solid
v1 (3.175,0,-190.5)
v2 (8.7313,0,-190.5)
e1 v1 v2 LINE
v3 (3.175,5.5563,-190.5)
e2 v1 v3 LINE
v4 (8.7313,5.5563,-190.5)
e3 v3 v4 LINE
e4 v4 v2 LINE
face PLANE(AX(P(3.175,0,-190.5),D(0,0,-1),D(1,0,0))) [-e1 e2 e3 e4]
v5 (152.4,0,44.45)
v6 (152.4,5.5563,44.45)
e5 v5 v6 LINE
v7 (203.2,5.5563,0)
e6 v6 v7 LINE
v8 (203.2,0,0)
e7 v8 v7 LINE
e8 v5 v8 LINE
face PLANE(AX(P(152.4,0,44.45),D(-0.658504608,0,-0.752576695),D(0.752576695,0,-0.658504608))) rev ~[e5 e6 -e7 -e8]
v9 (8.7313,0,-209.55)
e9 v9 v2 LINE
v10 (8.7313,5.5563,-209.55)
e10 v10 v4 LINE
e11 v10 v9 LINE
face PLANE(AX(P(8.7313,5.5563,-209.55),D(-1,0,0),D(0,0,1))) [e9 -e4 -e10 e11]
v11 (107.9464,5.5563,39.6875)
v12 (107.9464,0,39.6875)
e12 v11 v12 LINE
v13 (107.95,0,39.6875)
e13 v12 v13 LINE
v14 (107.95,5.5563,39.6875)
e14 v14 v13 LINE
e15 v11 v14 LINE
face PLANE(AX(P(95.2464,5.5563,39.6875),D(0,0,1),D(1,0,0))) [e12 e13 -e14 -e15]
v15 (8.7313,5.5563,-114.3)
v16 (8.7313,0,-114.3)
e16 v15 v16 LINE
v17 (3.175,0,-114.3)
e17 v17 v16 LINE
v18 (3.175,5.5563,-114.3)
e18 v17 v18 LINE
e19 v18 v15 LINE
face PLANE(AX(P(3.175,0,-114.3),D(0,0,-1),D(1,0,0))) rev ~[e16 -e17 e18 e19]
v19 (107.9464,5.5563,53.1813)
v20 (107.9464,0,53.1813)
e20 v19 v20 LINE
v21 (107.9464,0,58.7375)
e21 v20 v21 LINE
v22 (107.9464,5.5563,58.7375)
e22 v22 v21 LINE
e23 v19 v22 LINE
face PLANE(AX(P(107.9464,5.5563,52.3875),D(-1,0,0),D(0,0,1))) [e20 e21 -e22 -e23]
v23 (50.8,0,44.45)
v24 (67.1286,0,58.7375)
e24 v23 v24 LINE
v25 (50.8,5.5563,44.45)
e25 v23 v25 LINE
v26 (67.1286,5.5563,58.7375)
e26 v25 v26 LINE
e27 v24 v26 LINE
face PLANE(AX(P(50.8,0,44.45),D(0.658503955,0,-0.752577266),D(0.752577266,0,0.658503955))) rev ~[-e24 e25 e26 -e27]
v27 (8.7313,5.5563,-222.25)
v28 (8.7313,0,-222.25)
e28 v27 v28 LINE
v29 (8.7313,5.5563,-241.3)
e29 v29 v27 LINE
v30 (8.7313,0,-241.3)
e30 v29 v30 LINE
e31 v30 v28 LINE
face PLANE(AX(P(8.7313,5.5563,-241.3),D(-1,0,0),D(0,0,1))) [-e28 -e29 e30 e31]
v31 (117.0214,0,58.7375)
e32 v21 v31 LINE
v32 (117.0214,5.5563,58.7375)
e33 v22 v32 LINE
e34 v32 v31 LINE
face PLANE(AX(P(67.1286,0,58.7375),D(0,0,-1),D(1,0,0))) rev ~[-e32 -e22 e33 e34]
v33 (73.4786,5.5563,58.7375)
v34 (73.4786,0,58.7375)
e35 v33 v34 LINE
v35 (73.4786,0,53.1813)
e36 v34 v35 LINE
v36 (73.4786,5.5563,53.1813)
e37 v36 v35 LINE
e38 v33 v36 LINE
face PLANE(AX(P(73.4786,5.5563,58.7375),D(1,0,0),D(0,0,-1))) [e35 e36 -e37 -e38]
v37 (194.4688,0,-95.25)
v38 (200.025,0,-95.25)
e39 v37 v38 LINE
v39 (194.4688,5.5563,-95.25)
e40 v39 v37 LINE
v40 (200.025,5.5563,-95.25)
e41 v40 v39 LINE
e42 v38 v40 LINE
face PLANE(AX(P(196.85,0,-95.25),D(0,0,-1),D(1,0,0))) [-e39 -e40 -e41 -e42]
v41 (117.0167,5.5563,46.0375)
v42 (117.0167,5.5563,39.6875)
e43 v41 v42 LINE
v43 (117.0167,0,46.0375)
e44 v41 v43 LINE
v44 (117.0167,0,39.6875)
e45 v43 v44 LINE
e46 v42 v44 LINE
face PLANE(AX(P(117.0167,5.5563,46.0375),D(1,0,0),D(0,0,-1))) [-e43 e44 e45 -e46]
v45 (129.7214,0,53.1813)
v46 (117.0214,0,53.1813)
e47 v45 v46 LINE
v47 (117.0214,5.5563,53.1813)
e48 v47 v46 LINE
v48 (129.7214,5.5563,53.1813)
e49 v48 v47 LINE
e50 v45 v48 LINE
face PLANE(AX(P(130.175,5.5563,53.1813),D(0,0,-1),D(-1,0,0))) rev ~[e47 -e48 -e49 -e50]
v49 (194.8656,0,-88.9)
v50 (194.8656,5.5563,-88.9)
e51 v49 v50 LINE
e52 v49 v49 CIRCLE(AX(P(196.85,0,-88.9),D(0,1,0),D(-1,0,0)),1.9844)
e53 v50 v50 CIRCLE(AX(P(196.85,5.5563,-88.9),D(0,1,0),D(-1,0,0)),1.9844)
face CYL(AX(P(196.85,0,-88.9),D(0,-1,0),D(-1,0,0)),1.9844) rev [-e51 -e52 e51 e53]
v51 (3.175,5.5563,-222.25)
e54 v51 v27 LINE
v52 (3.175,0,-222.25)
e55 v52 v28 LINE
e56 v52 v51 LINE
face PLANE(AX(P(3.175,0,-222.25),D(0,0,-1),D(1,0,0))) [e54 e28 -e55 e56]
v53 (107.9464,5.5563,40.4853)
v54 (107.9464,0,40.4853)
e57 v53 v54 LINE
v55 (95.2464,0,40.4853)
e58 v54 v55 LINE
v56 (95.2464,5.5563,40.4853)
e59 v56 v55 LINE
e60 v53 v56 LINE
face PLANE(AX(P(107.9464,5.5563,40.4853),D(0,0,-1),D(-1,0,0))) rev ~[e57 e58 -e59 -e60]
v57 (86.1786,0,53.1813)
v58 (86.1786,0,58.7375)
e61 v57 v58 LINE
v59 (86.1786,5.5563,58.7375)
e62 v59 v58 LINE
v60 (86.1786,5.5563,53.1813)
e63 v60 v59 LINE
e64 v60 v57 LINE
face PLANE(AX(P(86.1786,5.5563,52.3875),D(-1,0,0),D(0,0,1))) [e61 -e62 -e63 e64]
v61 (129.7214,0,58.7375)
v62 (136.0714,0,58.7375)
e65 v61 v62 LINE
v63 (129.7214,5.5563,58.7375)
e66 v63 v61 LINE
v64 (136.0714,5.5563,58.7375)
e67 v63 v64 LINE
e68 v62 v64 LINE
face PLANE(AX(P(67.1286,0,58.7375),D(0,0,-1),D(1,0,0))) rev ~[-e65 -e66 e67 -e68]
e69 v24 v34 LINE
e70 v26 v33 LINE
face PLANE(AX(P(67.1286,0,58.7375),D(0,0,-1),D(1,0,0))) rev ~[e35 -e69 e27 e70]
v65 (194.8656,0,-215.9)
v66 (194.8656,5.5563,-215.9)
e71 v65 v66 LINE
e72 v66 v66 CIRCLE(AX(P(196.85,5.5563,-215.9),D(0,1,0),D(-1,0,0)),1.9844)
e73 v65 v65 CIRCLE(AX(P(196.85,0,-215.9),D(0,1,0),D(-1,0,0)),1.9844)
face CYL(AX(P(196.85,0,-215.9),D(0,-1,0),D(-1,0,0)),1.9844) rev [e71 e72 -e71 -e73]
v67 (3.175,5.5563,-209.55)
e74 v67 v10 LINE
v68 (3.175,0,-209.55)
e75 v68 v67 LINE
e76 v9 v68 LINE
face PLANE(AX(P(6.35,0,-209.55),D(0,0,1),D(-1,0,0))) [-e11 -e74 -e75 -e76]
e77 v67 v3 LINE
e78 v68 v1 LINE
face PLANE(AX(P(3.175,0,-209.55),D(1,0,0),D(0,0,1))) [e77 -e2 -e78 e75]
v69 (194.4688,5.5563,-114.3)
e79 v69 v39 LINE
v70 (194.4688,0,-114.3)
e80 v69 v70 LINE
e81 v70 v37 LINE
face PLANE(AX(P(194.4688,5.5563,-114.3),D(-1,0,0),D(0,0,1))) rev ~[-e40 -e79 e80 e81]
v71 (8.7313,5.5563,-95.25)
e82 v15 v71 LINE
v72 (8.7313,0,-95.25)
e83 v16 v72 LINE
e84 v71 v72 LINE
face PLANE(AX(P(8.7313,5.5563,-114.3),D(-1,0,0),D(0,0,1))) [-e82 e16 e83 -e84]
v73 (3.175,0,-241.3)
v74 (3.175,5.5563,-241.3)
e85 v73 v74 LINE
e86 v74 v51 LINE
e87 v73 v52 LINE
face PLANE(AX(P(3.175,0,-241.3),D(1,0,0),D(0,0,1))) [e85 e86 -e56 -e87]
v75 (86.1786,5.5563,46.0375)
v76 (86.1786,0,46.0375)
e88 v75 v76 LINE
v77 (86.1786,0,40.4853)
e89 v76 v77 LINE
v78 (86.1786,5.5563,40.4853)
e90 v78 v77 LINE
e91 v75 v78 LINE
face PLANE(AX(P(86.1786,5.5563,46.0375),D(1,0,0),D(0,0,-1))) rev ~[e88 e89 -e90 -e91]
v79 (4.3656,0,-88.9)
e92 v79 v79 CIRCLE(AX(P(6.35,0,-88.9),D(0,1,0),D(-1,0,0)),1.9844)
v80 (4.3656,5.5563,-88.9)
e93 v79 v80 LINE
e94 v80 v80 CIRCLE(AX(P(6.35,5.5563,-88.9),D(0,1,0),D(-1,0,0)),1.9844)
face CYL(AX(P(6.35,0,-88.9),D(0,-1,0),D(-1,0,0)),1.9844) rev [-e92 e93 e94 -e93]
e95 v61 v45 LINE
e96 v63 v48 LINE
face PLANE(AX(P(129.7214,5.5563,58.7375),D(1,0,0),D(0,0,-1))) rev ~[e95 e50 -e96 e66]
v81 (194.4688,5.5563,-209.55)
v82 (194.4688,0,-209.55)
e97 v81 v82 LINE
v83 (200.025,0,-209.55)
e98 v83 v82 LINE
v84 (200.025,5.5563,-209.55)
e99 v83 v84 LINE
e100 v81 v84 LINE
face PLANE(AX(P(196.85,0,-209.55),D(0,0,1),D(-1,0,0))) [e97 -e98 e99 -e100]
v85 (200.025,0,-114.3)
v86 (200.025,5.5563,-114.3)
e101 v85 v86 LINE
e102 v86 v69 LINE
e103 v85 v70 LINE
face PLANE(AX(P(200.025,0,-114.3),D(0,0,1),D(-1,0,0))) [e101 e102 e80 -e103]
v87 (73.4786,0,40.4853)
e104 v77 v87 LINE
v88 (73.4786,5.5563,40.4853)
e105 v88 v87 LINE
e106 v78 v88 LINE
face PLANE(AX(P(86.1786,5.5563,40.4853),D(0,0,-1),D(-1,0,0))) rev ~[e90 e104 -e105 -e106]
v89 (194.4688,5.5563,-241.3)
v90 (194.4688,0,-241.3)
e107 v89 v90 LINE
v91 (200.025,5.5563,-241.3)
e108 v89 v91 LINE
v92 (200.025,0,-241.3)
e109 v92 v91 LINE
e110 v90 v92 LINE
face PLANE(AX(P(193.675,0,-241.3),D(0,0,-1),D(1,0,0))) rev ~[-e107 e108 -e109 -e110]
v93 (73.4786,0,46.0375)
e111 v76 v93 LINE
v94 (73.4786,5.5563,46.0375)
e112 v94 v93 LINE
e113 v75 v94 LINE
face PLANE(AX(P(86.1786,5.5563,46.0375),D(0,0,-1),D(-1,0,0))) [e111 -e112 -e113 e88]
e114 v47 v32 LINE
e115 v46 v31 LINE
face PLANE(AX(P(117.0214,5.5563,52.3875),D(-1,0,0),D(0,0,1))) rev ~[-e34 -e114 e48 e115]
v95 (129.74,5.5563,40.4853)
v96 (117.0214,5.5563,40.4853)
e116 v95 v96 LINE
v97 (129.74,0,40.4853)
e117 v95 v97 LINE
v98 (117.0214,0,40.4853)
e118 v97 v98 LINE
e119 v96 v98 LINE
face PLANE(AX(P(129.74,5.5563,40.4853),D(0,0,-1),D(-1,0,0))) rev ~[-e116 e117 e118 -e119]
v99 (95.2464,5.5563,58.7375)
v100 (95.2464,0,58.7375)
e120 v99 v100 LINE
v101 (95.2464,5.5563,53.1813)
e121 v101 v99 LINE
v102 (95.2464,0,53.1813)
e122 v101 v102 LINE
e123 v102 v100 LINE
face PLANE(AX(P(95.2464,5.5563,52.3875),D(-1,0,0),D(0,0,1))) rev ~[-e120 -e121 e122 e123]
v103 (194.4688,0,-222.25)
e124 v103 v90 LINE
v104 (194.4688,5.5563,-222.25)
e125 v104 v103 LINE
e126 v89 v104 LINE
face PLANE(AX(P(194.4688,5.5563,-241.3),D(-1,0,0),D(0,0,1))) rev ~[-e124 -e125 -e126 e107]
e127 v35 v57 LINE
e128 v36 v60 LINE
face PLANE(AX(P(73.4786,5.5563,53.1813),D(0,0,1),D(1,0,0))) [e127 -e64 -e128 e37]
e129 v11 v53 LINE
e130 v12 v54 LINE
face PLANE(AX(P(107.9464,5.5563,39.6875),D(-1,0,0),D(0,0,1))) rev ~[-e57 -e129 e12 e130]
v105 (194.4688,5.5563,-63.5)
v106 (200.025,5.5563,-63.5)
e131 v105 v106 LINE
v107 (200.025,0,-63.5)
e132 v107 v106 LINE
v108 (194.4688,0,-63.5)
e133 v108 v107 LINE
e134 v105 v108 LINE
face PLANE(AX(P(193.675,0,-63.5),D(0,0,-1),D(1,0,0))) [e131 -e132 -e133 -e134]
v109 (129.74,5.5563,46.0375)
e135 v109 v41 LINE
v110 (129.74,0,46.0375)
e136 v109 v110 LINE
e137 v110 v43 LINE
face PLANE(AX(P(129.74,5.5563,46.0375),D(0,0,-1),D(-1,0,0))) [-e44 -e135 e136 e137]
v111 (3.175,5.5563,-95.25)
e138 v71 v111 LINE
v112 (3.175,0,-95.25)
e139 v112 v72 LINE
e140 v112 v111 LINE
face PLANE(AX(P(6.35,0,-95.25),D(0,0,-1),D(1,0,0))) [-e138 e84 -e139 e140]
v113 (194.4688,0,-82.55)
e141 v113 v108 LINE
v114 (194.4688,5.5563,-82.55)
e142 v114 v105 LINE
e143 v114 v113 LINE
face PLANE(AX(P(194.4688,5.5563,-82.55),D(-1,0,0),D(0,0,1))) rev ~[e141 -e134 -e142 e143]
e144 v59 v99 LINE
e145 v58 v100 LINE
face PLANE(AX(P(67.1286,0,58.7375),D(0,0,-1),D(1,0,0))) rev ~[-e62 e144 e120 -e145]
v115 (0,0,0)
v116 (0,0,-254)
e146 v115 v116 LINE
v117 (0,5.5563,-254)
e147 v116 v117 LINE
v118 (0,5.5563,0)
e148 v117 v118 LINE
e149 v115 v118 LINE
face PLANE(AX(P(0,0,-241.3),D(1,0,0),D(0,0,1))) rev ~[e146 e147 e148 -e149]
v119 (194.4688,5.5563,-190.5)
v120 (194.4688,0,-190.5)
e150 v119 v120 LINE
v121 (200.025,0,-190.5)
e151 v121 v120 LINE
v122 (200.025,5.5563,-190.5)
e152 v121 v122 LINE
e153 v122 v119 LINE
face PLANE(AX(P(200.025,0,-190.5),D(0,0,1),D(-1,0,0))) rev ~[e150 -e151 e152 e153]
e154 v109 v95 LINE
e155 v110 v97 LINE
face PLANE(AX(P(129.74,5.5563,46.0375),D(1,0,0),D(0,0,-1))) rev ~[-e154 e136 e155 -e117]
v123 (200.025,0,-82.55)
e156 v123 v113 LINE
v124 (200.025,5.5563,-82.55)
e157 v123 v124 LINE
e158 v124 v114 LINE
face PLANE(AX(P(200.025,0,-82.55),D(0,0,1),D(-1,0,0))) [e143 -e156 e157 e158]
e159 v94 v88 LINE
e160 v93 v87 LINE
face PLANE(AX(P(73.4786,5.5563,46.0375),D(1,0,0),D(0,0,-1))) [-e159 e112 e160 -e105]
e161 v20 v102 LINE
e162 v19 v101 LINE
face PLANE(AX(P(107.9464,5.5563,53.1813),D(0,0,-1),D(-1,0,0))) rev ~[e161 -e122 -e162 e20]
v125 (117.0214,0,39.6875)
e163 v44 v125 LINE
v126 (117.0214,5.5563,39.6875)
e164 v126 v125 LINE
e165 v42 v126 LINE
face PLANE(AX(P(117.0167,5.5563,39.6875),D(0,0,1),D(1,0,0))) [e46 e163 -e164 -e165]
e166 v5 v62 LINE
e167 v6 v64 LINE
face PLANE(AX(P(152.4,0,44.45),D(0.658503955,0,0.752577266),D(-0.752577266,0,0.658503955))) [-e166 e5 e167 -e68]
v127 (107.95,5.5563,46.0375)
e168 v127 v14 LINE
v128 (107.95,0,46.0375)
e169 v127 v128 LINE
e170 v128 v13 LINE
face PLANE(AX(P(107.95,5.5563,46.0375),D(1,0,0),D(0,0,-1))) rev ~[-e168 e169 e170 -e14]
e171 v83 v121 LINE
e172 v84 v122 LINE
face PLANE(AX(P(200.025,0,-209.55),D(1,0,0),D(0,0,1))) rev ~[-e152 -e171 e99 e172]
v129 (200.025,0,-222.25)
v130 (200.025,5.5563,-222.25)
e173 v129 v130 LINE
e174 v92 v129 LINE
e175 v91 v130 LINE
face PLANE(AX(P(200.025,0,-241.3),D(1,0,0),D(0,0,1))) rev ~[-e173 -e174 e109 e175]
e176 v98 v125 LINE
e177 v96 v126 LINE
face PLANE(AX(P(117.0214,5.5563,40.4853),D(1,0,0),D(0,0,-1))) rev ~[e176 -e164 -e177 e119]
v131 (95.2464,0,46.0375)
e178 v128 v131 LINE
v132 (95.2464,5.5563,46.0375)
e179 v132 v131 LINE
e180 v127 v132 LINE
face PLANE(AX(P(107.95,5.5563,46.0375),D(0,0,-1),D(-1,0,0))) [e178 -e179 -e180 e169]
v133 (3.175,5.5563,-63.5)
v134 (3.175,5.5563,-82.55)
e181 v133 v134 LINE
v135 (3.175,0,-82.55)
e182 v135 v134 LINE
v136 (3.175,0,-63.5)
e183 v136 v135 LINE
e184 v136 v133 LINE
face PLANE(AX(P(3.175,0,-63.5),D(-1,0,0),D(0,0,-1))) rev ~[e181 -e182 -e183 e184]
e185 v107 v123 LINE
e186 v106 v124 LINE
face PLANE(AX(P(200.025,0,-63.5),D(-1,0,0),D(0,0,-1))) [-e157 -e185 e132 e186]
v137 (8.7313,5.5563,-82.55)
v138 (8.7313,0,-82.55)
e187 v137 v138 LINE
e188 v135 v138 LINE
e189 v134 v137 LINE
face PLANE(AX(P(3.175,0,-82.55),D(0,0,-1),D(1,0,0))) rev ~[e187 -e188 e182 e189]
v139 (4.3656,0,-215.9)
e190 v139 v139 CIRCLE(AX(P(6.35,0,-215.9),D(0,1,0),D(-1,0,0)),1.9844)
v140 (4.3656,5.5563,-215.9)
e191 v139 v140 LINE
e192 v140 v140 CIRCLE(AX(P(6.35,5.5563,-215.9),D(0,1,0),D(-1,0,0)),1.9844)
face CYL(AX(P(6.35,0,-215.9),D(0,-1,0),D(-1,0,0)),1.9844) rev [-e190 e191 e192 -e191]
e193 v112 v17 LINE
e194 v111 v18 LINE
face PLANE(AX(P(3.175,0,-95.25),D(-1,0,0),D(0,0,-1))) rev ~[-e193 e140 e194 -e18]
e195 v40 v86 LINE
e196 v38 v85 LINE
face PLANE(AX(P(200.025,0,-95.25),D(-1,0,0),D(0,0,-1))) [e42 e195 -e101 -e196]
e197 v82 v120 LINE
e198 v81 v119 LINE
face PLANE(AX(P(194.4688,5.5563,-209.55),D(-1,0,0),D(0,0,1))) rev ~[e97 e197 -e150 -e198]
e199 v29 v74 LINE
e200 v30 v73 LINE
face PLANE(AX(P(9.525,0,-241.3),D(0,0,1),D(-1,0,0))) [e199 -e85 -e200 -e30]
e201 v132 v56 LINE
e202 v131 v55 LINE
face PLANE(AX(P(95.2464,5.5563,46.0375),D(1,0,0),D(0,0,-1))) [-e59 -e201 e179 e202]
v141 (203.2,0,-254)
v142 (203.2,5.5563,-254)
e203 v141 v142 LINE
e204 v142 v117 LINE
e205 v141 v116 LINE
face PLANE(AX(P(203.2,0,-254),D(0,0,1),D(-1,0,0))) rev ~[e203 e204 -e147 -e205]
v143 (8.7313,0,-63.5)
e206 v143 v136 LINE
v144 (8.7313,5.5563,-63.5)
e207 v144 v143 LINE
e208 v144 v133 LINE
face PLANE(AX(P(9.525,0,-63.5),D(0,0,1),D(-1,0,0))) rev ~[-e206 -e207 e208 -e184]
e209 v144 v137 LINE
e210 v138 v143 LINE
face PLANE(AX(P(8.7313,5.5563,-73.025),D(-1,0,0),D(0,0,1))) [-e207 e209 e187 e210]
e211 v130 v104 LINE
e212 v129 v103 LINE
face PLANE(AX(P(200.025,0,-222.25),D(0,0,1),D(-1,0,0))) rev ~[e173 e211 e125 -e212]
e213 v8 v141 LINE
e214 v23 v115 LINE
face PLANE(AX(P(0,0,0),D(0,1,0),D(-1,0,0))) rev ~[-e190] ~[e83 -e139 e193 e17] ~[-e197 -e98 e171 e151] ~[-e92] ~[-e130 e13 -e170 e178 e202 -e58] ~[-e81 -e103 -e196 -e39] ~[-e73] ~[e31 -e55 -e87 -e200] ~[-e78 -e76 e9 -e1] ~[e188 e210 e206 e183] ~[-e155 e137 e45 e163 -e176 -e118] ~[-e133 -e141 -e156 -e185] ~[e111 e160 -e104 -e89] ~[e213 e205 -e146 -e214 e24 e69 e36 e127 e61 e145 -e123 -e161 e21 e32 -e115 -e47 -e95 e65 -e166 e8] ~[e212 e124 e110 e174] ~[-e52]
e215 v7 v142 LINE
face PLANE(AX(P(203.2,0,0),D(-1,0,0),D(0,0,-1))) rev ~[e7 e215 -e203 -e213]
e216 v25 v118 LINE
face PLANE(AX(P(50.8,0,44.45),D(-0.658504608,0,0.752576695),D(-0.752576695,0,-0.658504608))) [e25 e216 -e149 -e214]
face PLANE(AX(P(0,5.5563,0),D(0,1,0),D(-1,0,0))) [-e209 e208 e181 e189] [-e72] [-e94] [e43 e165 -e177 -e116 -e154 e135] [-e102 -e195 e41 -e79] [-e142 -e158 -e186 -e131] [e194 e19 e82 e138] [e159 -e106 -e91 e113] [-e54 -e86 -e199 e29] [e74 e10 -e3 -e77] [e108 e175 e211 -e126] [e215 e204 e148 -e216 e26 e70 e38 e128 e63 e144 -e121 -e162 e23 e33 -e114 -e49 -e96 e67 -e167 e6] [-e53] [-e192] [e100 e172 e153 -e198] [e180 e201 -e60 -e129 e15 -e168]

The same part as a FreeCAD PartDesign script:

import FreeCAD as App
import Part
import Sketcher
from FreeCAD import Vector
Q = App.Units.Quantity


def add_polygon(sketch, points):
    """Adds a closed chain of lines whose ends are joined by coincident constraints."""
    first, n = sketch.GeometryCount, len(points)
    for a, b in zip(points, points[1:] + points[:1]):
        sketch.addGeometry(Part.LineSegment(App.Vector(*a, 0), App.Vector(*b, 0)), False)
    for i in range(n):
        sketch.addConstraint(Sketcher.Constraint("Coincident", first + i, 2, first + (i + 1) % n, 1))

doc = App.newDocument("Part")
body = doc.addObject("PartDesign::Body", "Body")

# Sketch on XZ plane
sketch1 = body.newObject("Sketcher::SketchObject", "Sketch")
sketch1.AttachmentSupport = (doc.getObject("XZ_Plane"), [""])
sketch1.MapMode = "FlatFace"
add_polygon(sketch1, [(152.4, 44.45), (203.2, 0), (203.2, -254), (0, -254), (0, 0), (50.8, 44.45), (67.1286, 58.7375), (136.0714, 58.7375)])  # lines 0-7
add_polygon(sketch1, [(193.675, -241.3), (200.025, -241.3), (200.025, -222.25), (193.675, -222.25)])  # lines 8-11
add_polygon(sketch1, [(193.675, -209.55), (200.025, -209.55), (200.025, -190.5), (193.675, -190.5)])  # lines 12-15
add_polygon(sketch1, [(200.025, -95.25), (193.675, -95.25), (193.675, -114.3), (200.025, -114.3)])  # lines 16-19
add_polygon(sketch1, [(3.175, -222.25), (3.175, -241.3), (9.525, -241.3), (9.525, -222.25)])  # lines 20-23
add_polygon(sketch1, [(3.175, -209.55), (9.525, -209.55), (9.525, -190.5), (3.175, -190.5)])  # lines 24-27
add_polygon(sketch1, [(9.525, -95.25), (3.175, -95.25), (3.175, -114.3), (9.525, -114.3)])  # lines 28-31
add_polygon(sketch1, [(200.025, -63.5), (193.675, -63.5), (193.675, -82.55), (200.025, -82.55)])  # lines 32-35
add_polygon(sketch1, [(9.525, -63.5), (3.175, -63.5), (3.175, -82.55), (9.525, -82.55)])  # lines 36-39
sketch1.addGeometry(Part.Circle(Vector(196.85, -215.9, 0), Vector(0, 0, 1), 1.9844), False)  # 40
sketch1.addGeometry(Part.Circle(Vector(6.35, -215.9, 0), Vector(0, 0, 1), 1.9844), False)  # 41
sketch1.addGeometry(Part.Circle(Vector(196.85, -88.9, 0), Vector(0, 0, 1), 1.9844), False)  # 42
sketch1.addGeometry(Part.Circle(Vector(6.35, -88.9, 0), Vector(0, 0, 1), 1.9844), False)  # 43
sketch1.addConstraint(Sketcher.Constraint("Vertical", 1))
sketch1.addConstraint(Sketcher.Constraint("Horizontal", 2))
sketch1.addConstraint(Sketcher.Constraint("Vertical", 3))
sketch1.addConstraint(Sketcher.Constraint("Horizontal", 6))
sketch1.addConstraint(Sketcher.Constraint("Horizontal", 8))
sketch1.addConstraint(Sketcher.Constraint("Vertical", 9))
sketch1.addConstraint(Sketcher.Constraint("Horizontal", 10))
sketch1.addConstraint(Sketcher.Constraint("Vertical", 11))
sketch1.addConstraint(Sketcher.Constraint("Horizontal", 12))
sketch1.addConstraint(Sketcher.Constraint("Vertical", 13))
sketch1.addConstraint(Sketcher.Constraint("Horizontal", 14))
sketch1.addConstraint(Sketcher.Constraint("Vertical", 15))
sketch1.addConstraint(Sketcher.Constraint("Horizontal", 16))
sketch1.addConstraint(Sketcher.Constraint("Vertical", 17))
sketch1.addConstraint(Sketcher.Constraint("Horizontal", 18))
sketch1.addConstraint(Sketcher.Constraint("Vertical", 19))
sketch1.addConstraint(Sketcher.Constraint("Vertical", 20))
sketch1.addConstraint(Sketcher.Constraint("Horizontal", 21))
sketch1.addConstraint(Sketcher.Constraint("Vertical", 22))
sketch1.addConstraint(Sketcher.Constraint("Horizontal", 23))
sketch1.addConstraint(Sketcher.Constraint("Horizontal", 24))
sketch1.addConstraint(Sketcher.Constraint("Vertical", 25))
sketch1.addConstraint(Sketcher.Constraint("Horizontal", 26))
sketch1.addConstraint(Sketcher.Constraint("Vertical", 27))
sketch1.addConstraint(Sketcher.Constraint("Horizontal", 28))
sketch1.addConstraint(Sketcher.Constraint("Vertical", 29))
sketch1.addConstraint(Sketcher.Constraint("Horizontal", 30))
sketch1.addConstraint(Sketcher.Constraint("Vertical", 31))
sketch1.addConstraint(Sketcher.Constraint("Horizontal", 32))
sketch1.addConstraint(Sketcher.Constraint("Vertical", 33))
sketch1.addConstraint(Sketcher.Constraint("Horizontal", 34))
sketch1.addConstraint(Sketcher.Constraint("Vertical", 35))
sketch1.addConstraint(Sketcher.Constraint("Horizontal", 36))
sketch1.addConstraint(Sketcher.Constraint("Vertical", 37))
sketch1.addConstraint(Sketcher.Constraint("Horizontal", 38))
sketch1.addConstraint(Sketcher.Constraint("Vertical", 39))
sketch1.addConstraint(Sketcher.Constraint("Coincident", 3, 2, -1, 1))
sketch1.addConstraint(Sketcher.Constraint("Equal", 40, 41))
sketch1.addConstraint(Sketcher.Constraint("Equal", 41, 42))
sketch1.addConstraint(Sketcher.Constraint("Equal", 42, 43))
sketch1.addConstraint(Sketcher.Constraint("PointOnObject", 0, 2, -1))
sketch1.addConstraint(Sketcher.Constraint("Parallel", 4, 5))
sketch1.addConstraint(Sketcher.Constraint("Parallel", 0, 7))
sketch1.addConstraint(Sketcher.Constraint("Horizontal", 40, 3, 41, 3))
sketch1.addConstraint(Sketcher.Constraint("Horizontal", 42, 3, 43, 3))
sketch1.addConstraint(Sketcher.Constraint("Horizontal", 4, 2, 7, 2))
sketch1.addConstraint(Sketcher.Constraint("Horizontal", 11, 2, 20, 2))
sketch1.addConstraint(Sketcher.Constraint("Horizontal", 10, 2, 22, 2))
sketch1.addConstraint(Sketcher.Constraint("Horizontal", 15, 2, 24, 2))
sketch1.addConstraint(Sketcher.Constraint("Horizontal", 14, 2, 25, 2))
sketch1.addConstraint(Sketcher.Constraint("Horizontal", 19, 2, 28, 2))
sketch1.addConstraint(Sketcher.Constraint("Horizontal", 18, 2, 29, 2))
sketch1.addConstraint(Sketcher.Constraint("Horizontal", 35, 2, 36, 2))
sketch1.addConstraint(Sketcher.Constraint("Horizontal", 34, 2, 37, 2))
sketch1.addConstraint(Sketcher.Constraint("Vertical", 40, 3, 42, 3))
sketch1.addConstraint(Sketcher.Constraint("Vertical", 41, 3, 43, 3))
sketch1.addConstraint(Sketcher.Constraint("Vertical", 9, 2, 12, 2))
sketch1.addConstraint(Sketcher.Constraint("Vertical", 11, 2, 14, 2))
sketch1.addConstraint(Sketcher.Constraint("Vertical", 15, 2, 16, 2))
sketch1.addConstraint(Sketcher.Constraint("Vertical", 13, 2, 18, 2))
sketch1.addConstraint(Sketcher.Constraint("Vertical", 22, 2, 24, 2))
sketch1.addConstraint(Sketcher.Constraint("Vertical", 23, 2, 26, 2))
sketch1.addConstraint(Sketcher.Constraint("Vertical", 27, 2, 28, 2))
sketch1.addConstraint(Sketcher.Constraint("Vertical", 25, 2, 30, 2))
sketch1.addConstraint(Sketcher.Constraint("Vertical", 17, 2, 32, 2))
sketch1.addConstraint(Sketcher.Constraint("Vertical", 19, 2, 34, 2))
sketch1.addConstraint(Sketcher.Constraint("Vertical", 29, 2, 36, 2))
sketch1.addConstraint(Sketcher.Constraint("Vertical", 31, 2, 38, 2))
sketch1.addConstraint(Sketcher.Constraint("Equal", 18, 21))
sketch1.addConstraint(Sketcher.Constraint("Equal", 11, 13))
sketch1.addConstraint(Sketcher.Constraint("Equal", 15, 17))
sketch1.addConstraint(Sketcher.Constraint("Equal", 31, 33))
sketch1.addConstraint(Sketcher.Constraint("Equal", 0, 4))
sketch1.addConstraint(Sketcher.Constraint("DistanceX", 2, 2, 2, 1, Q("8 in")))
sketch1.addConstraint(Sketcher.Constraint("DistanceY", 1, 2, 1, 1, Q("10 in")))
sketch1.addConstraint(Sketcher.Constraint("Diameter", 40, Q("0.156252 in")))
sketch1.addConstraint(Sketcher.Constraint("DistanceX", 8, 1, 8, 2, Q("0.25 in")))
sketch1.addConstraint(Sketcher.Constraint("DistanceY", 9, 1, 9, 2, Q("0.75 in")))
sketch1.addConstraint(Sketcher.Constraint("DistanceX", -1, 1, 41, 3, Q("0.25 in")))
sketch1.addConstraint(Sketcher.Constraint("DistanceX", 42, 3, 0, 2, Q("0.25 in")))
sketch1.addConstraint(Sketcher.Constraint("DistanceY", 9, 2, 40, 3, Q("0.25 in")))
sketch1.addConstraint(Sketcher.Constraint("DistanceY", 40, 3, 12, 2, Q("0.25 in")))
sketch1.addConstraint(Sketcher.Constraint("DistanceY", 16, 2, 42, 3, Q("0.25 in")))
sketch1.addConstraint(Sketcher.Constraint("DistanceY", 42, 3, 33, 2, Q("0.25 in")))
sketch1.addConstraint(Sketcher.Constraint("DistanceX", -1, 1, 20, 2, Q("0.125 in")))
sketch1.addConstraint(Sketcher.Constraint("DistanceX", -1, 1, 4, 2, Q("2 in")))
sketch1.addConstraint(Sketcher.Constraint("DistanceY", 40, 3, 42, 3, Q("5 in")))
sketch1.addConstraint(Sketcher.Constraint("DistanceX", 8, 2, 1, 2, Q("0.125 in")))
sketch1.addConstraint(Sketcher.Constraint("DistanceY", 40, 3, -1, 1, Q("8.5 in")))
sketch1.addConstraint(Sketcher.Constraint("DistanceY", -1, 1, 4, 2, Q("1.75 in")))
sketch1.addConstraint(Sketcher.Constraint("DistanceY", -1, 1, 5, 2, Q("2.3125 in")))
pad1 = body.newObject("PartDesign::Pad", "Pad")
pad1.Profile = sketch1
pad1.Length = Q("0.218752 in")
pad1.Reversed = True

# Sketch on XZ plane
sketch2 = body.newObject("Sketcher::SketchObject", "Sketch001")
sketch2.AttachmentSupport = (doc.getObject("XZ_Plane"), [""])
sketch2.MapMode = "FlatFace"
sketch2.AttachmentOffset = App.Placement(Vector(0, 0, -0.218752 * 25.4), App.Rotation())
add_polygon(sketch2, [(73.4786, 52.3875), (73.4786, 58.7375), (86.1786, 58.7375), (86.1786, 52.3875)])  # lines 0-3
add_polygon(sketch2, [(117.0214, 52.3875), (117.0214, 58.7375), (129.7214, 58.7375), (129.7214, 52.3875)])  # lines 4-7
add_polygon(sketch2, [(95.2464, 52.3875), (95.2464, 58.7375), (107.9464, 58.7375), (107.9464, 52.3875)])  # lines 8-11
sketch2.addConstraint(Sketcher.Constraint("Vertical", 0))
sketch2.addConstraint(Sketcher.Constraint("Horizontal", 1))
sketch2.addConstraint(Sketcher.Constraint("Vertical", 2))
sketch2.addConstraint(Sketcher.Constraint("Horizontal", 3))
sketch2.addConstraint(Sketcher.Constraint("Vertical", 4))
sketch2.addConstraint(Sketcher.Constraint("Horizontal", 5))
sketch2.addConstraint(Sketcher.Constraint("Vertical", 6))
sketch2.addConstraint(Sketcher.Constraint("Horizontal", 7))
sketch2.addConstraint(Sketcher.Constraint("Vertical", 8))
sketch2.addConstraint(Sketcher.Constraint("Horizontal", 9))
sketch2.addConstraint(Sketcher.Constraint("Vertical", 10))
sketch2.addConstraint(Sketcher.Constraint("Horizontal", 11))
sketch2.addConstraint(Sketcher.Constraint("Horizontal", 1, 2, 4, 2))
sketch2.addConstraint(Sketcher.Constraint("Horizontal", 3, 2, 6, 2))
sketch2.addConstraint(Sketcher.Constraint("Horizontal", 5, 2, 8, 2))
sketch2.addConstraint(Sketcher.Constraint("Horizontal", 7, 2, 10, 2))
sketch2.addConstraint(Sketcher.Constraint("Equal", 3, 5))
sketch2.addConstraint(Sketcher.Constraint("Equal", 7, 9))
sketch2.addConstraint(Sketcher.Constraint("DistanceX", 1, 1, 1, 2, Q("0.5 in")))
sketch2.addConstraint(Sketcher.Constraint("DistanceY", 0, 1, 0, 2, Q("0.25 in")))
sketch2.addConstraint(Sketcher.Constraint("DistanceY", -1, 1, 0, 2, Q("2.3125 in")))
sketch2.addConstraint(Sketcher.Constraint("DistanceX", 1, 2, 8, 2, Q("0.357 in")))
sketch2.addConstraint(Sketcher.Constraint("DistanceX", -1, 1, 0, 2, 73.4786))
sketch2.addConstraint(Sketcher.Constraint("DistanceX", -1, 1, 4, 2, 117.0214))
pocket1 = body.newObject("PartDesign::Pocket", "Pocket")
pocket1.Profile = sketch2
pocket1.Length = Q("1 in")
pocket1.Reversed = True

# Sketch on XZ plane
sketch3 = body.newObject("Sketcher::SketchObject", "Sketch002")
sketch3.AttachmentSupport = (doc.getObject("XZ_Plane"), [""])
sketch3.MapMode = "FlatFace"
sketch3.AttachmentOffset = App.Placement(Vector(0, 0, -0.218752 * 25.4), App.Rotation())
add_polygon(sketch3, [(73.4786, 39.6875), (73.4786, 46.0375), (86.1786, 46.0375), (86.1786, 39.6875)])  # lines 0-3
add_polygon(sketch3, [(117.0167, 46.0375), (129.74, 46.0375), (129.74, 39.6875), (117.0167, 39.6875)])  # lines 4-7
add_polygon(sketch3, [(95.2464, 39.6875), (95.2464, 46.0375), (107.95, 46.0375), (107.95, 39.6875)])  # lines 8-11
sketch3.addConstraint(Sketcher.Constraint("Vertical", 0))
sketch3.addConstraint(Sketcher.Constraint("Horizontal", 1))
sketch3.addConstraint(Sketcher.Constraint("Vertical", 2))
sketch3.addConstraint(Sketcher.Constraint("Horizontal", 3))
sketch3.addConstraint(Sketcher.Constraint("Horizontal", 4))
sketch3.addConstraint(Sketcher.Constraint("Vertical", 5))
sketch3.addConstraint(Sketcher.Constraint("Horizontal", 6))
sketch3.addConstraint(Sketcher.Constraint("Vertical", 7))
sketch3.addConstraint(Sketcher.Constraint("Vertical", 8))
sketch3.addConstraint(Sketcher.Constraint("Horizontal", 9))
sketch3.addConstraint(Sketcher.Constraint("Vertical", 10))
sketch3.addConstraint(Sketcher.Constraint("Horizontal", 11))
sketch3.addConstraint(Sketcher.Constraint("Horizontal", 1, 2, 4, 2))
sketch3.addConstraint(Sketcher.Constraint("Horizontal", 3, 2, 5, 2))
sketch3.addConstraint(Sketcher.Constraint("Horizontal", 7, 2, 8, 2))
sketch3.addConstraint(Sketcher.Constraint("Horizontal", 6, 2, 10, 2))
sketch3.addConstraint(Sketcher.Constraint("DistanceX", 1, 1, 1, 2, Q("0.5 in")))
sketch3.addConstraint(Sketcher.Constraint("DistanceY", 0, 1, 0, 2, Q("0.25 in")))
sketch3.addConstraint(Sketcher.Constraint("DistanceX", -1, 1, 9, 2, Q("4.25 in")))
sketch3.addConstraint(Sketcher.Constraint("DistanceY", -1, 1, 0, 2, Q("1.8125 in")))
sketch3.addConstraint(Sketcher.Constraint("DistanceX", 1, 2, 8, 2, Q("0.357 in")))
sketch3.addConstraint(Sketcher.Constraint("DistanceX", 4, 1, 4, 2, 12.7233))
sketch3.addConstraint(Sketcher.Constraint("DistanceX", 9, 1, 9, 2, 12.7036))
sketch3.addConstraint(Sketcher.Constraint("DistanceX", 2, 2, 6, 2, Q("1.2141 in")))
pocket2 = body.newObject("PartDesign::Pocket", "Pocket001")
pocket2.Profile = sketch3
pocket2.Length = Q("1 in")
pocket2.Reversed = True

# Sketch on XZ plane
sketch4 = body.newObject("Sketcher::SketchObject", "Sketch003")
sketch4.AttachmentSupport = (doc.getObject("XZ_Plane"), [""])
sketch4.MapMode = "FlatFace"
sketch4.AttachmentOffset = App.Placement(Vector(0, 0, -0.218752 * 25.4), App.Rotation())
add_polygon(sketch4, [(8.7313, -82.55), (8.7313, -63.5), (9.525, -63.5), (9.525, -82.55)])  # lines 0-3
add_polygon(sketch4, [(9.525, -95.25), (9.525, -114.3), (8.7313, -114.3), (8.7313, -95.25)])  # lines 4-7
add_polygon(sketch4, [(9.525, -209.55), (8.7313, -209.55), (8.7313, -190.5), (9.525, -190.5)])  # lines 8-11
add_polygon(sketch4, [(9.525, -222.25), (9.525, -241.3), (8.7313, -241.3), (8.7313, -222.25)])  # lines 12-15
add_polygon(sketch4, [(194.4688, -241.3), (193.675, -241.3), (193.675, -222.25), (194.4688, -222.25)])  # lines 16-19
add_polygon(sketch4, [(194.4688, -209.55), (193.675, -209.55), (193.675, -190.5), (194.4688, -190.5)])  # lines 20-23
add_polygon(sketch4, [(194.4688, -114.3), (193.675, -114.3), (193.675, -95.25), (194.4688, -95.25)])  # lines 24-27
add_polygon(sketch4, [(194.4688, -82.55), (193.675, -82.55), (193.675, -63.5), (194.4688, -63.5)])  # lines 28-31
add_polygon(sketch4, [(86.1786, 53.1813), (86.1786, 52.3875), (73.4786, 52.3875), (73.4786, 53.1813)])  # lines 32-35
add_polygon(sketch4, [(95.2464, 52.3875), (95.2464, 53.1813), (107.9464, 53.1813), (107.9464, 52.3875)])  # lines 36-39
add_polygon(sketch4, [(130.175, 52.3875), (117.0214, 52.3875), (117.0214, 53.1813), (130.175, 53.1813)])  # lines 40-43
add_polygon(sketch4, [(73.4786, 40.4853), (86.1786, 40.4853), (86.1786, 39.6875), (73.4786, 39.6875)])  # lines 44-47
add_polygon(sketch4, [(107.9464, 39.6875), (95.2464, 39.6875), (95.2464, 40.4853), (107.9464, 40.4853)])  # lines 48-51
add_polygon(sketch4, [(129.74, 39.6875), (117.0214, 39.6875), (117.0214, 40.4853), (129.74, 40.4853)])  # lines 52-55
sketch4.addConstraint(Sketcher.Constraint("Vertical", 0))
sketch4.addConstraint(Sketcher.Constraint("Horizontal", 1))
sketch4.addConstraint(Sketcher.Constraint("Vertical", 2))
sketch4.addConstraint(Sketcher.Constraint("Horizontal", 3))
sketch4.addConstraint(Sketcher.Constraint("Vertical", 4))
sketch4.addConstraint(Sketcher.Constraint("Horizontal", 5))
sketch4.addConstraint(Sketcher.Constraint("Vertical", 6))
sketch4.addConstraint(Sketcher.Constraint("Horizontal", 7))
sketch4.addConstraint(Sketcher.Constraint("Horizontal", 8))
sketch4.addConstraint(Sketcher.Constraint("Vertical", 9))
sketch4.addConstraint(Sketcher.Constraint("Horizontal", 10))
sketch4.addConstraint(Sketcher.Constraint("Vertical", 11))
sketch4.addConstraint(Sketcher.Constraint("Vertical", 12))
sketch4.addConstraint(Sketcher.Constraint("Horizontal", 13))
sketch4.addConstraint(Sketcher.Constraint("Vertical", 14))
sketch4.addConstraint(Sketcher.Constraint("Horizontal", 15))
sketch4.addConstraint(Sketcher.Constraint("Horizontal", 16))
sketch4.addConstraint(Sketcher.Constraint("Vertical", 17))
sketch4.addConstraint(Sketcher.Constraint("Horizontal", 18))
sketch4.addConstraint(Sketcher.Constraint("Vertical", 19))
sketch4.addConstraint(Sketcher.Constraint("Horizontal", 20))
sketch4.addConstraint(Sketcher.Constraint("Vertical", 21))
sketch4.addConstraint(Sketcher.Constraint("Horizontal", 22))
sketch4.addConstraint(Sketcher.Constraint("Vertical", 23))
sketch4.addConstraint(Sketcher.Constraint("Horizontal", 24))
sketch4.addConstraint(Sketcher.Constraint("Vertical", 25))
sketch4.addConstraint(Sketcher.Constraint("Horizontal", 26))
sketch4.addConstraint(Sketcher.Constraint("Vertical", 27))
sketch4.addConstraint(Sketcher.Constraint("Horizontal", 28))
sketch4.addConstraint(Sketcher.Constraint("Vertical", 29))
sketch4.addConstraint(Sketcher.Constraint("Horizontal", 30))
sketch4.addConstraint(Sketcher.Constraint("Vertical", 31))
sketch4.addConstraint(Sketcher.Constraint("Vertical", 32))
sketch4.addConstraint(Sketcher.Constraint("Horizontal", 33))
sketch4.addConstraint(Sketcher.Constraint("Vertical", 34))
sketch4.addConstraint(Sketcher.Constraint("Horizontal", 35))
sketch4.addConstraint(Sketcher.Constraint("Vertical", 36))
sketch4.addConstraint(Sketcher.Constraint("Horizontal", 37))
sketch4.addConstraint(Sketcher.Constraint("Vertical", 38))
sketch4.addConstraint(Sketcher.Constraint("Horizontal", 39))
sketch4.addConstraint(Sketcher.Constraint("Horizontal", 40))
sketch4.addConstraint(Sketcher.Constraint("Vertical", 41))
sketch4.addConstraint(Sketcher.Constraint("Horizontal", 42))
sketch4.addConstraint(Sketcher.Constraint("Vertical", 43))
sketch4.addConstraint(Sketcher.Constraint("Horizontal", 44))
sketch4.addConstraint(Sketcher.Constraint("Vertical", 45))
sketch4.addConstraint(Sketcher.Constraint("Horizontal", 46))
sketch4.addConstraint(Sketcher.Constraint("Vertical", 47))
sketch4.addConstraint(Sketcher.Constraint("Horizontal", 48))
sketch4.addConstraint(Sketcher.Constraint("Vertical", 49))
sketch4.addConstraint(Sketcher.Constraint("Horizontal", 50))
sketch4.addConstraint(Sketcher.Constraint("Vertical", 51))
sketch4.addConstraint(Sketcher.Constraint("Horizontal", 52))
sketch4.addConstraint(Sketcher.Constraint("Vertical", 53))
sketch4.addConstraint(Sketcher.Constraint("Horizontal", 54))
sketch4.addConstraint(Sketcher.Constraint("Vertical", 55))
sketch4.addConstraint(Sketcher.Constraint("Horizontal", 13, 2, 16, 2))
sketch4.addConstraint(Sketcher.Constraint("Horizontal", 15, 2, 17, 2))
sketch4.addConstraint(Sketcher.Constraint("Horizontal", 11, 2, 20, 2))
sketch4.addConstraint(Sketcher.Constraint("Horizontal", 10, 2, 21, 2))
sketch4.addConstraint(Sketcher.Constraint("Horizontal", 5, 2, 24, 2))
sketch4.addConstraint(Sketcher.Constraint("Horizontal", 7, 2, 25, 2))
sketch4.addConstraint(Sketcher.Constraint("Horizontal", 3, 2, 28, 2))
sketch4.addConstraint(Sketcher.Constraint("Horizontal", 1, 2, 29, 2))
sketch4.addConstraint(Sketcher.Constraint("Horizontal", 35, 2, 36, 2))
sketch4.addConstraint(Sketcher.Constraint("Horizontal", 33, 2, 38, 2))
sketch4.addConstraint(Sketcher.Constraint("Horizontal", 39, 2, 40, 2))
sketch4.addConstraint(Sketcher.Constraint("Horizontal", 37, 2, 41, 2))
sketch4.addConstraint(Sketcher.Constraint("Horizontal", 46, 2, 48, 2))
sketch4.addConstraint(Sketcher.Constraint("Horizontal", 47, 2, 49, 2))
sketch4.addConstraint(Sketcher.Constraint("Horizontal", 51, 2, 52, 2))
sketch4.addConstraint(Sketcher.Constraint("Horizontal", 50, 2, 53, 2))
sketch4.addConstraint(Sketcher.Constraint("Vertical", 2, 2, 4, 2))
sketch4.addConstraint(Sketcher.Constraint("Vertical", 3, 2, 5, 2))
sketch4.addConstraint(Sketcher.Constraint("Vertical", 6, 2, 8, 2))
sketch4.addConstraint(Sketcher.Constraint("Vertical", 7, 2, 10, 2))
sketch4.addConstraint(Sketcher.Constraint("Vertical", 11, 2, 12, 2))
sketch4.addConstraint(Sketcher.Constraint("Vertical", 9, 2, 13, 2))
sketch4.addConstraint(Sketcher.Constraint("Vertical", 17, 2, 20, 2))
sketch4.addConstraint(Sketcher.Constraint("Vertical", 19, 2, 22, 2))
sketch4.addConstraint(Sketcher.Constraint("Vertical", 21, 2, 24, 2))
sketch4.addConstraint(Sketcher.Constraint("Vertical", 23, 2, 26, 2))
sketch4.addConstraint(Sketcher.Constraint("Vertical", 25, 2, 28, 2))
sketch4.addConstraint(Sketcher.Constraint("Vertical", 27, 2, 30, 2))
sketch4.addConstraint(Sketcher.Constraint("Vertical", 35, 2, 44, 2))
sketch4.addConstraint(Sketcher.Constraint("Vertical", 34, 2, 46, 2))
sketch4.addConstraint(Sketcher.Constraint("Vertical", 39, 2, 48, 2))
sketch4.addConstraint(Sketcher.Constraint("Vertical", 38, 2, 50, 2))
sketch4.addConstraint(Sketcher.Constraint("Vertical", 41, 2, 52, 2))
sketch4.addConstraint(Sketcher.Constraint("Equal", 15, 16))
sketch4.addConstraint(Sketcher.Constraint("Equal", 35, 37))
sketch4.addConstraint(Sketcher.Constraint("Equal", 2, 4))
sketch4.addConstraint(Sketcher.Constraint("Equal", 6, 9))
sketch4.addConstraint(Sketcher.Constraint("Equal", 11, 12))
sketch4.addConstraint(Sketcher.Constraint("Equal", 30, 32))
sketch4.addConstraint(Sketcher.Constraint("DistanceX", 33, 2, 33, 1, Q("0.5 in")))
sketch4.addConstraint(Sketcher.Constraint("DistanceY", 4, 2, 1, 2, Q("2 in")))
sketch4.addConstraint(Sketcher.Constraint("DistanceY", 8, 2, 3, 2, Q("5 in")))
sketch4.addConstraint(Sketcher.Constraint("DistanceY", 12, 2, 10, 2, Q("2 in")))
sketch4.addConstraint(Sketcher.Constraint("DistanceY", 0, 1, 0, 2, Q("0.75 in")))
sketch4.addConstraint(Sketcher.Constraint("DistanceY", 0, 2, -1, 1, Q("2.5 in")))
sketch4.addConstraint(Sketcher.Constraint("DistanceY", 45, 2, 32, 2, Q("0.5 in")))
sketch4.addConstraint(Sketcher.Constraint("DistanceX", 1, 1, 1, 2, Q("0.031248 in")))
sketch4.addConstraint(Sketcher.Constraint("DistanceX", 12, 2, 16, 2, Q("7.25 in")))
sketch4.addConstraint(Sketcher.Constraint("DistanceY", 45, 2, 45, 1, Q("0.0314 in")))
sketch4.addConstraint(Sketcher.Constraint("DistanceX", -1, 1, 0, 2, Q("0.343752 in")))
sketch4.addConstraint(Sketcher.Constraint("DistanceY", -1, 1, 32, 2, Q("2.0625 in")))
sketch4.addConstraint(Sketcher.Constraint("DistanceX", -1, 1, 42, 2, Q("5.125 in")))
sketch4.addConstraint(Sketcher.Constraint("DistanceX", 35, 2, 36, 2, Q("0.357 in")))
sketch4.addConstraint(Sketcher.Constraint("DistanceX", 40, 2, 40, 1, 13.1536))
sketch4.addConstraint(Sketcher.Constraint("DistanceX", 52, 2, 52, 1, 12.7186))
sketch4.addConstraint(Sketcher.Constraint("DistanceX", 0, 2, 32, 2, Q("3.0491 in")))
pad2 = body.newObject("PartDesign::Pad", "Pad001")
pad2.Profile = sketch4
pad2.Length = Q("0.218752 in")

doc.recompute()
